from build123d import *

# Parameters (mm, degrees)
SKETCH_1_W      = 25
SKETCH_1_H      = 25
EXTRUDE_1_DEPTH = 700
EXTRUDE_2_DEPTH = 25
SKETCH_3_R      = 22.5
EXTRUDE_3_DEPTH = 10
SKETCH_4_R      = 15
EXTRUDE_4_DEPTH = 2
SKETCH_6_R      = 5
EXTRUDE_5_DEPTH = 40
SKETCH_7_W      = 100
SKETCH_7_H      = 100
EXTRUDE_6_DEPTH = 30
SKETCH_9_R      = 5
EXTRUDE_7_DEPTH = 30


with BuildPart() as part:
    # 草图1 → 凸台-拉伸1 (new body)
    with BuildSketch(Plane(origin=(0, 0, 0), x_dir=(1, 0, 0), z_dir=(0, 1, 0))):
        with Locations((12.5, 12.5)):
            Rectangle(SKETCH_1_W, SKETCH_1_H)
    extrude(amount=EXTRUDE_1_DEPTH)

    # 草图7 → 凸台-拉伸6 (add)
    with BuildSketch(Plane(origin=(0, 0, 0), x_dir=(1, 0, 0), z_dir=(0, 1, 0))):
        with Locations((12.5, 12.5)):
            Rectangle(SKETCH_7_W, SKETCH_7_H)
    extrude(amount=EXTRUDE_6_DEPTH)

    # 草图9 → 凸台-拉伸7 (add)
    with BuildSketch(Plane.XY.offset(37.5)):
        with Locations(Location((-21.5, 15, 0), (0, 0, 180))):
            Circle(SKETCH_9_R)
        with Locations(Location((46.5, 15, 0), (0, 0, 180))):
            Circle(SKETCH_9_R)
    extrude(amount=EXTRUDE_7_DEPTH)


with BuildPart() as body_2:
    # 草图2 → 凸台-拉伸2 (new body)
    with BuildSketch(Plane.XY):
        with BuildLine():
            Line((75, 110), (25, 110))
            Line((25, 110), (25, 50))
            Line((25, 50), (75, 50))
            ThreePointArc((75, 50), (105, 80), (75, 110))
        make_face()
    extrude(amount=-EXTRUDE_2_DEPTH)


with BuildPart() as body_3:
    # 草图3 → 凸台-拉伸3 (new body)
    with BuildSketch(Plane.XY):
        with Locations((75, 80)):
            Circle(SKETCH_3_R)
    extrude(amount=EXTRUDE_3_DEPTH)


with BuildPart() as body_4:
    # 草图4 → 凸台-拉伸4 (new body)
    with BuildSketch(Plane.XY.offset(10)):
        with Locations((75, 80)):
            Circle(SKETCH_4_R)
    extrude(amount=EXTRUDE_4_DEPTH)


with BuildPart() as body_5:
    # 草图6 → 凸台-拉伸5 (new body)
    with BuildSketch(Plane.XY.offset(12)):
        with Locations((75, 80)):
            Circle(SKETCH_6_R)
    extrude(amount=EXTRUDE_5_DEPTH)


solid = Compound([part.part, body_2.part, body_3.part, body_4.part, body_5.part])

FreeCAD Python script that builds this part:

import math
import FreeCAD as App
import Part
import Sketcher
from FreeCAD import Vector
Q = App.Units.Quantity


def add_polygon(sketch, points):
    """Adds a closed chain of lines whose ends are joined by coincident constraints."""
    first, n = sketch.GeometryCount, len(points)
    for a, b in zip(points, points[1:] + points[:1]):
        sketch.addGeometry(Part.LineSegment(App.Vector(*a, 0), App.Vector(*b, 0)), False)
    for i in range(n):
        sketch.addConstraint(Sketcher.Constraint("Coincident", first + i, 2, first + (i + 1) % n, 1))

doc = App.newDocument("Part")
body = doc.addObject("PartDesign::Body", "Body")

# Sketch on XZ plane
sketch1 = doc.addObject("Sketcher::SketchObject", "Sketch")
body.addObject(sketch1)
sketch1.AttachmentSupport = (doc.XZ_Plane, [""])
sketch1.MapMode = "FlatFace"
add_polygon(sketch1, [(0, -25), (0, 0), (25, 0), (25, -25)])  # lines 0-3
sketch1.addConstraint(Sketcher.Constraint("Vertical", 0))
sketch1.addConstraint(Sketcher.Constraint("Horizontal", 1))
sketch1.addConstraint(Sketcher.Constraint("Vertical", 2))
sketch1.addConstraint(Sketcher.Constraint("Horizontal", 3))
sketch1.addConstraint(Sketcher.Constraint("Coincident", 0, 2, -1, 1))
sketch1.addConstraint(Sketcher.Constraint("Equal", 3, 0))
sketch1.addConstraint(Sketcher.Constraint("DistanceX", 1, 1, 1, 2, Q("25 mm")))
pad1 = doc.addObject("PartDesign::Pad", "Pad")
body.addObject(pad1)
pad1.Profile = sketch1
pad1.Length = 700
pad1.Reversed = True

# Sketch on XZ plane
sketch2 = doc.addObject("Sketcher::SketchObject", "Sketch001")
body.addObject(sketch2)
sketch2.AttachmentSupport = (doc.XZ_Plane, [""])
sketch2.MapMode = "FlatFace"
add_polygon(sketch2, [(-38, -62), (-38, 38), (62, 38), (62, -62)])  # lines 0-3
sketch2.addConstraint(Sketcher.Constraint("Vertical", 0))
sketch2.addConstraint(Sketcher.Constraint("Horizontal", 1))
sketch2.addConstraint(Sketcher.Constraint("Vertical", 2))
sketch2.addConstraint(Sketcher.Constraint("Horizontal", 3))
sketch2.addConstraint(Sketcher.Constraint("Equal", 3, 0))
sketch2.addConstraint(Sketcher.Constraint("DistanceX", 1, 1, 1, 2, Q("100 mm")))
sketch2.addConstraint(Sketcher.Constraint("DistanceX", 0, 2, -1, 1, Q("37.5 mm")))
sketch2.addConstraint(Sketcher.Constraint("DistanceY", -1, 1, 0, 2, Q("37.5 mm")))
pad2 = doc.addObject("PartDesign::Pad", "Pad001")
body.addObject(pad2)
pad2.Profile = sketch2
pad2.Length = 30
pad2.Reversed = True

# Sketch on XY plane
sketch3 = doc.addObject("Sketcher::SketchObject", "Sketch002")
body.addObject(sketch3)
sketch3.AttachmentSupport = (doc.XY_Plane, [""])
sketch3.MapMode = "FlatFace"
sketch3.AttachmentOffset = App.Placement(Vector(0, 0, 37.5), App.Rotation())
sketch3.addGeometry(Part.Circle(Vector(-22, 15, 0), Vector(0, 0, 1), 5), False)
sketch3.addGeometry(Part.Circle(Vector(46, 15, 0), Vector(0, 0, 1), 5), False)
sketch3.addConstraint(Sketcher.Constraint("Equal", 0, 1))
sketch3.addConstraint(Sketcher.Constraint("Horizontal", 0, 3, 1, 3))
sketch3.addConstraint(Sketcher.Constraint("Diameter", 0, Q("10 mm")))
sketch3.addConstraint(Sketcher.Constraint("DistanceY", -1, 1, 0, 3, Q("15 mm")))
sketch3.addConstraint(Sketcher.Constraint("DistanceX", 0, 3, 1, 3, Q("68 mm")))
sketch3.addConstraint(Sketcher.Constraint("DistanceX", 0, 3, -1, 1, Q("21.5 mm")))
pad3 = doc.addObject("PartDesign::Pad", "Pad002")
body.addObject(pad3)
pad3.Profile = sketch3
pad3.Length = 30
body2 = doc.addObject("PartDesign::Body", "Body001")

# Sketch on XY plane
sketch4 = doc.addObject("Sketcher::SketchObject", "Sketch003")
body2.addObject(sketch4)
sketch4.AttachmentSupport = (doc.getObject("XY_Plane001"), [""])
sketch4.MapMode = "FlatFace"
sketch4.addGeometry(Part.LineSegment(Vector(75, 110, 0), Vector(25, 110, 0)), False)
sketch4.addGeometry(Part.LineSegment(Vector(25, 110, 0), Vector(25, 50, 0)), False)
sketch4.addGeometry(Part.LineSegment(Vector(25, 50, 0), Vector(75, 50, 0)), False)
sketch4.addGeometry(Part.ArcOfCircle(Part.Circle(Vector(75, 80, 0), Vector(0, 0, 1), 30), math.radians(-90), math.radians(90)), False)
sketch4.addConstraint(Sketcher.Constraint("Coincident", 0, 2, 1, 1))
sketch4.addConstraint(Sketcher.Constraint("Coincident", 1, 2, 2, 1))
sketch4.addConstraint(Sketcher.Constraint("Tangent", 2, 2, 3, 1))
sketch4.addConstraint(Sketcher.Constraint("Tangent", 3, 2, 0, 1))
sketch4.addConstraint(Sketcher.Constraint("Horizontal", 0))
sketch4.addConstraint(Sketcher.Constraint("Vertical", 1))
sketch4.addConstraint(Sketcher.Constraint("Horizontal", 2))
sketch4.addConstraint(Sketcher.Constraint("Radius", 3, Q("30 mm")))
sketch4.addConstraint(Sketcher.Constraint("DistanceX", 0, 2, 0, 1, Q("50 mm")))
sketch4.addConstraint(Sketcher.Constraint("DistanceX", -1, 1, 3, 3, Q("75 mm")))
sketch4.addConstraint(Sketcher.Constraint("DistanceY", -1, 1, 3, 3, Q("80 mm")))
pad4 = doc.addObject("PartDesign::Pad", "Pad003")
body2.addObject(pad4)
pad4.Profile = sketch4
pad4.Length = 25
pad4.Reversed = True
body3 = doc.addObject("PartDesign::Body", "Body002")

# Sketch on XY plane
sketch5 = doc.addObject("Sketcher::SketchObject", "Sketch004")
body3.addObject(sketch5)
sketch5.AttachmentSupport = (doc.getObject("XY_Plane002"), [""])
sketch5.MapMode = "FlatFace"
sketch5.addGeometry(Part.Circle(Vector(75, 80, 0), Vector(0, 0, 1), 22), False)
sketch5.addConstraint(Sketcher.Constraint("Diameter", 0, Q("45 mm")))
sketch5.addConstraint(Sketcher.Constraint("DistanceX", -1, 1, 0, 3, Q("75 mm")))
sketch5.addConstraint(Sketcher.Constraint("DistanceY", -1, 1, 0, 3, Q("80 mm")))
pad5 = doc.addObject("PartDesign::Pad", "Pad004")
body3.addObject(pad5)
pad5.Profile = sketch5
pad5.Length = 10
body4 = doc.addObject("PartDesign::Body", "Body003")

# Sketch on XY plane
sketch6 = doc.addObject("Sketcher::SketchObject", "Sketch005")
body4.addObject(sketch6)
sketch6.AttachmentSupport = (doc.getObject("XY_Plane003"), [""])
sketch6.MapMode = "FlatFace"
sketch6.AttachmentOffset = App.Placement(Vector(0, 0, 10), App.Rotation())
sketch6.addGeometry(Part.Circle(Vector(75, 80, 0), Vector(0, 0, 1), 15), False)
sketch6.addConstraint(Sketcher.Constraint("Diameter", 0, Q("30 mm")))
sketch6.addConstraint(Sketcher.Constraint("DistanceX", -1, 1, 0, 3, Q("75 mm")))
sketch6.addConstraint(Sketcher.Constraint("DistanceY", -1, 1, 0, 3, Q("80 mm")))
pad6 = doc.addObject("PartDesign::Pad", "Pad005")
body4.addObject(pad6)
pad6.Profile = sketch6
pad6.Length = 2
body5 = doc.addObject("PartDesign::Body", "Body004")

# Sketch on XY plane
sketch7 = doc.addObject("Sketcher::SketchObject", "Sketch006")
body5.addObject(sketch7)
sketch7.AttachmentSupport = (doc.getObject("XY_Plane004"), [""])
sketch7.MapMode = "FlatFace"
sketch7.AttachmentOffset = App.Placement(Vector(0, 0, 12), App.Rotation())
sketch7.addGeometry(Part.Circle(Vector(75, 80, 0), Vector(0, 0, 1), 5), False)
sketch7.addConstraint(Sketcher.Constraint("Diameter", 0, Q("10 mm")))
sketch7.addConstraint(Sketcher.Constraint("DistanceX", -1, 1, 0, 3, Q("75 mm")))
sketch7.addConstraint(Sketcher.Constraint("DistanceY", -1, 1, 0, 3, Q("80 mm")))
pad7 = doc.addObject("PartDesign::Pad", "Pad006")
body5.addObject(pad7)
pad7.Profile = sketch7
pad7.Length = 40

doc.recompute()
